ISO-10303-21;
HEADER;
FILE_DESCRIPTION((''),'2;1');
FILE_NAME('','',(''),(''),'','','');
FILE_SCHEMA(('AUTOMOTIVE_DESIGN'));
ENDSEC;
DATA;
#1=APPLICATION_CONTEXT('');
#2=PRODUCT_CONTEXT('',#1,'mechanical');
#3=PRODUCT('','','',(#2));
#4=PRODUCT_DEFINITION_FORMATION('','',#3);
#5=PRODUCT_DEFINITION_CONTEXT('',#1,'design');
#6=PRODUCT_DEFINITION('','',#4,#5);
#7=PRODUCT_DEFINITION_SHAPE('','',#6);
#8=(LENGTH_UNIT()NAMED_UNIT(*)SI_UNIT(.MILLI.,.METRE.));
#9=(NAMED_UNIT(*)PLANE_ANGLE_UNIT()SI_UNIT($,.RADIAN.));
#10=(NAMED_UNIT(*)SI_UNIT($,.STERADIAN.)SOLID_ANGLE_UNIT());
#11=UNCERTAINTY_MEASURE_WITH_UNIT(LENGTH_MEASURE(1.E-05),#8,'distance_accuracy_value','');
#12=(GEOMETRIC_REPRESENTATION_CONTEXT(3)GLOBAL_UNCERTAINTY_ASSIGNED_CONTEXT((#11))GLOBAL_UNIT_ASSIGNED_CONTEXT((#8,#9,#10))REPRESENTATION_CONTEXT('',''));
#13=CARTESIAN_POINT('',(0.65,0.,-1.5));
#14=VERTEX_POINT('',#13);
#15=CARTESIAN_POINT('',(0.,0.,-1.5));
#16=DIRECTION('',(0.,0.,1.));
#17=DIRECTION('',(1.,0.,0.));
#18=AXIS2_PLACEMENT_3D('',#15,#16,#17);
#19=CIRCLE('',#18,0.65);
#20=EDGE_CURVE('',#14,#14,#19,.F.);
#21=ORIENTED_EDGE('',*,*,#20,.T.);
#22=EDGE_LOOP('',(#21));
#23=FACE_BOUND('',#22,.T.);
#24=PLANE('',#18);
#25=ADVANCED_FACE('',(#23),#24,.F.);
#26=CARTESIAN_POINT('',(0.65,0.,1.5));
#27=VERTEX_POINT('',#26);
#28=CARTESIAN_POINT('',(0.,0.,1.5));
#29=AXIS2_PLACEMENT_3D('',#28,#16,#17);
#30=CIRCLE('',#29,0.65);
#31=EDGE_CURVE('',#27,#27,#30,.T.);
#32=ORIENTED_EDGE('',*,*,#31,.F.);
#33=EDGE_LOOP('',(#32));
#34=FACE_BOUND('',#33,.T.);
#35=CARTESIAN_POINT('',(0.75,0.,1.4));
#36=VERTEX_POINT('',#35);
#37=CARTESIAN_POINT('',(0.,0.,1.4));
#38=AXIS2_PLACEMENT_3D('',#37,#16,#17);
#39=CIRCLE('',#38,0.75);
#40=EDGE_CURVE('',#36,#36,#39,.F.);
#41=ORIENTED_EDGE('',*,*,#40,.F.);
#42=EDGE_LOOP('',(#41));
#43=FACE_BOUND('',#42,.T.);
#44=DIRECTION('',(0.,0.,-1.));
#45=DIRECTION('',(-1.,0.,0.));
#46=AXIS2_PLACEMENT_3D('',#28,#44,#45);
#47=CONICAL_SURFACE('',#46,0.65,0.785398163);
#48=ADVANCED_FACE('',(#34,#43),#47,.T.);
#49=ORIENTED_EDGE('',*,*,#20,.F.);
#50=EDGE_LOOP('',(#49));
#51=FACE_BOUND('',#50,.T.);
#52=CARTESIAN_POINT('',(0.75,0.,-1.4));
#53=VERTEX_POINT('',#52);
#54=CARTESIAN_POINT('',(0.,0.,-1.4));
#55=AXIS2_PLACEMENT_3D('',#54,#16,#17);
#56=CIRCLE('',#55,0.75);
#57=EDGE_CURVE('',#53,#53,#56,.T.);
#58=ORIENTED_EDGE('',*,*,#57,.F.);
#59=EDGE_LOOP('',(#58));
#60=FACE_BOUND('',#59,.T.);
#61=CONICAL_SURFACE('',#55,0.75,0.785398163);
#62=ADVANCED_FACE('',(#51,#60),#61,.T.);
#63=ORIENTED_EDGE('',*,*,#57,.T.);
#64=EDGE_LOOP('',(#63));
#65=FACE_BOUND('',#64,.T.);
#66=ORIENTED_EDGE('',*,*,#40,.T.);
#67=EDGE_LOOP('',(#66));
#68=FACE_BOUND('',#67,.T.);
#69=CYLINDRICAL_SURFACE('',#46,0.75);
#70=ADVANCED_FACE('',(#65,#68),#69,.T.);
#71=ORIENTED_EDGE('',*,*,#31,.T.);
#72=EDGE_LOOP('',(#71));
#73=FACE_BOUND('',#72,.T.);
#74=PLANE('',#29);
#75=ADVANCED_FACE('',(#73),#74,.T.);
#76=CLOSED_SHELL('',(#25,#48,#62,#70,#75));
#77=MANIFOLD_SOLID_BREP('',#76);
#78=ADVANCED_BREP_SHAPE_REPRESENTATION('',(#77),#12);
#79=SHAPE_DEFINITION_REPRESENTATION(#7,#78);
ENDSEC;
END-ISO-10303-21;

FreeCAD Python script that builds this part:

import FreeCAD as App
import Part
import Sketcher

V = App.Vector


def edges_at(feature, points):
    """Names of the edges that pass closest to the given points."""
    edges = feature.Shape.Edges
    near = lambda p: min(range(len(edges)), key=lambda i: edges[i].distToShape(Part.Vertex(*p))[0])
    return sorted({f"Edge{near(p) + 1}" for p in points})

doc = App.newDocument("Part")
body = doc.addObject("PartDesign::Body", "Body")

# Sketch on XY plane
sketch1 = body.newObject("Sketcher::SketchObject", "Sketch")
sketch1.AttachmentSupport = (doc.getObject("XY_Plane"), [""])
sketch1.MapMode = "FlatFace"
sketch1.addGeometry(Part.Circle(V(0, 0, 0), V(0, 0, 1), 0.8), False)
sketch1.addConstraint([
    Sketcher.Constraint("Coincident", 0, 3, -1, 1),
    Sketcher.Constraint("Diameter", 0, 1.5),
])
pad1 = body.newObject("PartDesign::Pad", "Pad")
pad1.Profile = sketch1
pad1.Length = 3
pad1.Midplane = True
doc.recompute()

chamfer = body.newObject("PartDesign::Chamfer", "Chamfer")
chamfer.Base = (pad1, edges_at(pad1, [(-0.75, 0, -1.5), (-0.75, 0, 1.5)]))
chamfer.Size = 0.1

doc.recompute()
